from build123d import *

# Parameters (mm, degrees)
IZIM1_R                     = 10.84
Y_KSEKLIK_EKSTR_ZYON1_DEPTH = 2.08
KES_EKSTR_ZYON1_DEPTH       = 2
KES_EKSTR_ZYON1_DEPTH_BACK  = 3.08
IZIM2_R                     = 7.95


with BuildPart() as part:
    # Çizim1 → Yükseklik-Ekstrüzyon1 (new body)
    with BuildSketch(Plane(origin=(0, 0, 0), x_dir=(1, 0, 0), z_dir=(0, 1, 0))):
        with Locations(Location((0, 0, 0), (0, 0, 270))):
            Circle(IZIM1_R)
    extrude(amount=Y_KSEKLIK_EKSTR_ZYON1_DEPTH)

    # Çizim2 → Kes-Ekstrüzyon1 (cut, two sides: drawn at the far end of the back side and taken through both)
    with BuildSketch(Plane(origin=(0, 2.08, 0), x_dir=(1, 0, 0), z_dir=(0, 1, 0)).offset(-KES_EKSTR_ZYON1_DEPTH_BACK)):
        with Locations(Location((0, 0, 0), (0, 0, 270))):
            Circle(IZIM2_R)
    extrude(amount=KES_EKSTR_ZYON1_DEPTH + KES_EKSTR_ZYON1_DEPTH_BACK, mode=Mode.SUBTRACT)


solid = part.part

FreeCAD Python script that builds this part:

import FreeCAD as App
import Part
import Sketcher

doc = App.newDocument("Part")
body = doc.addObject("PartDesign::Body", "Body")

sketch1 = doc.addObject("Sketcher::SketchObject", "Sketch")
body.addObject(sketch1)
sketch1.AttachmentSupport = (doc.XZ_Plane, [""])
sketch1.MapMode = "FlatFace"
sketch1.addGeometry(Part.Circle(App.Vector(0, 0, 0), App.Vector(0, 0, 1), 10.84), False)
sketch1.addConstraint(Sketcher.Constraint("Coincident", 0, 3, -1, 1))
sketch1.addConstraint(Sketcher.Constraint("Diameter", 0, 21.68))
pad1 = doc.addObject("PartDesign::Pad", "Pad")
body.addObject(pad1)
pad1.Profile = sketch1
pad1.Length = 2.08
pad1.Reversed = True

sketch2 = doc.addObject("Sketcher::SketchObject", "Sketch001")
body.addObject(sketch2)
sketch2.AttachmentSupport = (doc.XZ_Plane, [""])
sketch2.MapMode = "FlatFace"
sketch2.AttachmentOffset = App.Placement(App.Vector(0, 0, -2.08), App.Rotation())
sketch2.addGeometry(Part.Circle(App.Vector(0, 0, 0), App.Vector(0, 0, 1), 7.95), False)
sketch2.addConstraint(Sketcher.Constraint("Coincident", 0, 3, -1, 1))
sketch2.addConstraint(Sketcher.Constraint("Diameter", 0, 15.9))
pocket1 = doc.addObject("PartDesign::Pocket", "Pocket")
body.addObject(pocket1)
pocket1.Profile = sketch2
pocket1.Type = "ThroughAll"
pocket1.Midplane = True

doc.recompute()
